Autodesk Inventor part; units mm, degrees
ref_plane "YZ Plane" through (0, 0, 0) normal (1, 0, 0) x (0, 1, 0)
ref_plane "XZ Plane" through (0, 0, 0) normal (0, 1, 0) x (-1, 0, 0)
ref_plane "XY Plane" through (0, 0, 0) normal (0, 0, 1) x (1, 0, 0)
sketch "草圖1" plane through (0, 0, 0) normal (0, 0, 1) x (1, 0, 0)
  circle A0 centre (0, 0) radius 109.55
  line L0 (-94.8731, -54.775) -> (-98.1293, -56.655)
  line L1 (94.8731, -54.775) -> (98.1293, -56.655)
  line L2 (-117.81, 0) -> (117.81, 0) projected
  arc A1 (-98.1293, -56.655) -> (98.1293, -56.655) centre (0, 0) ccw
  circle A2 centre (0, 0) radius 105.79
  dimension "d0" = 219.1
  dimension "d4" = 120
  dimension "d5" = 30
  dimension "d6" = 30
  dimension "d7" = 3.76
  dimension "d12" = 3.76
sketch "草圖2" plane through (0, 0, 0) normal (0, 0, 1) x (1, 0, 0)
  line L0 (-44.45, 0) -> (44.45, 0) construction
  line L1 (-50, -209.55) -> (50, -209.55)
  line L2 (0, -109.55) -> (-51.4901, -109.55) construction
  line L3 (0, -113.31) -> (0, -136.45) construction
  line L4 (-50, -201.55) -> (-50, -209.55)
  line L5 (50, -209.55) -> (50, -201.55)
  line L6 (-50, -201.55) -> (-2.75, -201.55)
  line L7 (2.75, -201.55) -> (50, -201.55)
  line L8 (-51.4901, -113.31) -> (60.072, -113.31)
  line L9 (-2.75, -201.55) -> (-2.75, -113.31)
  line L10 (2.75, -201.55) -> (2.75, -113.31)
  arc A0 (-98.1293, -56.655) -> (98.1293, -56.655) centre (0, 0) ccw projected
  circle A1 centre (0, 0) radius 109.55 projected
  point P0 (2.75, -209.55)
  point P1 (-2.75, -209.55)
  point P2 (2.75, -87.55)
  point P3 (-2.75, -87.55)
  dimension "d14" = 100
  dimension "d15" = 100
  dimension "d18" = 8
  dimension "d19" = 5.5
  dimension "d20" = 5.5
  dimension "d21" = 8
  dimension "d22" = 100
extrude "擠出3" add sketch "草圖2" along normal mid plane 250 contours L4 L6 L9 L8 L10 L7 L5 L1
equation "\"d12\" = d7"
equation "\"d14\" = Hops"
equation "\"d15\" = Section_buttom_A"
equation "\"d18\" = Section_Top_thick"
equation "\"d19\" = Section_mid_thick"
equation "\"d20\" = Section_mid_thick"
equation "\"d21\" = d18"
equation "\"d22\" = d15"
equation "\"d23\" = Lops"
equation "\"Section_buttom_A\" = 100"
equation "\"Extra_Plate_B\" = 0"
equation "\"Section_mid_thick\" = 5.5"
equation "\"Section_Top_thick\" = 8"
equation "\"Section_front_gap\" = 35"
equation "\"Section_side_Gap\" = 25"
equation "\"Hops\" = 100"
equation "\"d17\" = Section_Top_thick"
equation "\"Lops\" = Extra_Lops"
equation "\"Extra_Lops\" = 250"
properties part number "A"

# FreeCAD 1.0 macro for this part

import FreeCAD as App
import Part
import Sketcher

V = App.Vector

doc = App.newDocument("Part")
body = doc.addObject("PartDesign::Body", "Body")

# Sketch on XY plane
sketch1 = body.newObject("Sketcher::SketchObject", "Sketch")
sketch1.AttachmentSupport = (doc.getObject("XY_Plane"), [""])
sketch1.MapMode = "FlatFace"
sketch1.addGeometry([
    Part.LineSegment(V(-50, -202, 0), V(-50, -210, 0)),  # 0
    Part.LineSegment(V(-50, -210, 0), V(50, -210, 0)),  # 1
    Part.LineSegment(V(50, -210, 0), V(50, -202, 0)),  # 2
    Part.LineSegment(V(50, -202, 0), V(3, -202, 0)),  # 3
    Part.LineSegment(V(3, -202, 0), V(3, -113, 0)),  # 4
    Part.LineSegment(V(3, -113, 0), V(-3, -113, 0)),  # 5
    Part.LineSegment(V(-3, -113, 0), V(-3, -202, 0)),  # 6
    Part.LineSegment(V(-3, -202, 0), V(-50, -202, 0)),  # 7
], False)
sketch1.addConstraint([
    Sketcher.Constraint("Coincident", 0, 2, 1, 1),
    Sketcher.Constraint("Coincident", 1, 2, 2, 1),
    Sketcher.Constraint("Coincident", 2, 2, 3, 1),
    Sketcher.Constraint("Coincident", 3, 2, 4, 1),
    Sketcher.Constraint("Coincident", 4, 2, 5, 1),
    Sketcher.Constraint("Coincident", 5, 2, 6, 1),
    Sketcher.Constraint("Coincident", 6, 2, 7, 1),
    Sketcher.Constraint("Coincident", 7, 2, 0, 1),
    Sketcher.Constraint("Vertical", 0),
    Sketcher.Constraint("Horizontal", 1),
    Sketcher.Constraint("Vertical", 2),
    Sketcher.Constraint("Horizontal", 3),
    Sketcher.Constraint("Vertical", 4),
    Sketcher.Constraint("Horizontal", 5),
    Sketcher.Constraint("Vertical", 6),
    Sketcher.Constraint("Horizontal", 7),
    Sketcher.Constraint("Symmetric", 3, 2, 6, 2, -2),
    Sketcher.Constraint("Equal", 3, 7),
    Sketcher.Constraint("DistanceX", 1, 1, 1, 2, 100.0),
    Sketcher.Constraint("DistanceY", 0, 2, 0, 1, 8.0),
    Sketcher.Constraint("DistanceX", 5, 2, 5, 1, 5.5),
    Sketcher.Constraint("DistanceY", 4, 1, 4, 2, 88.24),
    Sketcher.Constraint("DistanceY", 0, 2, -1, 1, 209.55),
])
pad1 = body.newObject("PartDesign::Pad", "Pad")
pad1.Profile = sketch1
pad1.Length = 250
pad1.Midplane = True

doc.recompute()
